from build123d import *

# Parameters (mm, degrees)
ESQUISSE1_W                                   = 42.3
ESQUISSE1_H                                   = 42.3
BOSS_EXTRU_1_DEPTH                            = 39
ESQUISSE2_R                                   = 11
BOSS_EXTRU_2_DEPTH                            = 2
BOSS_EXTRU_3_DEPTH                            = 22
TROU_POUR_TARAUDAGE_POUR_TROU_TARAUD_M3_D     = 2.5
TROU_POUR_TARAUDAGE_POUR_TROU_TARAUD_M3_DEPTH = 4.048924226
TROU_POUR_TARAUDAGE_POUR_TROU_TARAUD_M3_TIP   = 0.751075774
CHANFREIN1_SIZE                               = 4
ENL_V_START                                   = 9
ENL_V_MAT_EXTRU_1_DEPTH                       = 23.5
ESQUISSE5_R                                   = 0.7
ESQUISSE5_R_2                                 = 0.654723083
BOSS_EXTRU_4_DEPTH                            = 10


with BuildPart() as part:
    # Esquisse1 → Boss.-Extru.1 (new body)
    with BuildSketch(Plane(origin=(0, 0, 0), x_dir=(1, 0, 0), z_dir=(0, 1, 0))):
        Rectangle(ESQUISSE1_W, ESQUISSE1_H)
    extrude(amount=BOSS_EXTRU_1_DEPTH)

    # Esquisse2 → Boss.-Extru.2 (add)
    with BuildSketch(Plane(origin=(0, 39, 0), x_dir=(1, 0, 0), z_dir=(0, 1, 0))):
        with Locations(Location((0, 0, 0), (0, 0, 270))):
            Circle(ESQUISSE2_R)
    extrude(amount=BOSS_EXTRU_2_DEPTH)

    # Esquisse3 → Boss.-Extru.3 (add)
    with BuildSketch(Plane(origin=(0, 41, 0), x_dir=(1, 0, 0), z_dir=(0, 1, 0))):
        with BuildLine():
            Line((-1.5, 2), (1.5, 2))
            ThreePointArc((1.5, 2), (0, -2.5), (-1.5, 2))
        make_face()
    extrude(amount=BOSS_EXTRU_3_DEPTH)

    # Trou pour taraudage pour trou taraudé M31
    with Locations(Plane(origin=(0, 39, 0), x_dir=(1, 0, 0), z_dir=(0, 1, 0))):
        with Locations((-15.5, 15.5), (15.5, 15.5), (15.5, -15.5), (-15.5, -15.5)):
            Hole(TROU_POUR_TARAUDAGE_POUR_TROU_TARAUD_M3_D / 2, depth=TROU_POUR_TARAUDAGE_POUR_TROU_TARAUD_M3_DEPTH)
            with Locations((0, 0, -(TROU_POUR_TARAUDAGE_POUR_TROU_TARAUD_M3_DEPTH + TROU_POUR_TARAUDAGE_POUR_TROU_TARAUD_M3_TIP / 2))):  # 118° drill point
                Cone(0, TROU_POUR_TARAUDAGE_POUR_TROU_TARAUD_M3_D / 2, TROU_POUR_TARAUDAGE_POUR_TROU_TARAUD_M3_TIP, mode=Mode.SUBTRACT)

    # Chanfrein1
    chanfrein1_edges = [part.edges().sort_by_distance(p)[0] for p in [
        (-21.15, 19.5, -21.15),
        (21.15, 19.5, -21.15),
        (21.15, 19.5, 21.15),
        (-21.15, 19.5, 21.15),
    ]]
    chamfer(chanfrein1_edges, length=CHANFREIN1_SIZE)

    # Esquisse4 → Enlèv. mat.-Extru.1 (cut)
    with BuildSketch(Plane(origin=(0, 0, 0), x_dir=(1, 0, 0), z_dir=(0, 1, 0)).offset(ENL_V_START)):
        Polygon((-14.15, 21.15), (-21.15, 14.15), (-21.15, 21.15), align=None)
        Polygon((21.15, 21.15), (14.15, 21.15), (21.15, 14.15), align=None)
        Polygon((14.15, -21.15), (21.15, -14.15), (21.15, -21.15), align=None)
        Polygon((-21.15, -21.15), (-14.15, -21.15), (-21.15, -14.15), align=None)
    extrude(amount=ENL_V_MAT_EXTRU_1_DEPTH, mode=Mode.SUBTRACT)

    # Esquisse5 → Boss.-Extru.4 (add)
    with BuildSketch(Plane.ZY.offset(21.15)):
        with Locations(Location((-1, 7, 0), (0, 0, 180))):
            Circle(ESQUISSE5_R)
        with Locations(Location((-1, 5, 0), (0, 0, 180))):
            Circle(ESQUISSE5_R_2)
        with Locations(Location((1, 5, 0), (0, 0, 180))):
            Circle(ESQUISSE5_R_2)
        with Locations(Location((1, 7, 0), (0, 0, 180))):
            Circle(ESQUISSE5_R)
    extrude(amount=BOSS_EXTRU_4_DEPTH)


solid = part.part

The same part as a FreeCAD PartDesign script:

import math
import FreeCAD as App
import Part
import Sketcher
Q = App.Units.Quantity


def edges_at(feature, points):
    """Names of the edges that pass closest to the given points."""
    edges = feature.Shape.Edges
    near = lambda p: min(range(len(edges)), key=lambda i: edges[i].distToShape(Part.Vertex(*p))[0])
    return sorted({f"Edge{near(p) + 1}" for p in points})

doc = App.newDocument("Part")
params = doc.addObject("Spreadsheet::Sheet", "Params")
for row, (alias, value) in enumerate([
    ("sketch1_width", "42.3 mm"),
    ("pad1_length", "39 mm"),
    ("sketch2_diameter", "22 mm"),
    ("pad2_length", "2 mm"),
    ("sketch3_radius", "2.5 mm"),
    ("sketch3_width", "3 mm"),
    ("pad3_length", "22 mm"),
    ("sketch4_diameter", "2.5 mm"),
    ("hole_diameter", "2.5 mm"),
    ("hole_depth", "4.048924 mm"),
    ("chamfer_size", "4 mm"),
    ("sketch5_width", "7 mm"),
    ("pocket1_length", "23.5 mm"),
    ("sketch6_diameter", "1.4 mm"),
    ("pad4_length", "10 mm"),
], start=1):
    params.set(f"A{row}", alias)
    params.set(f"B{row}", "=" + value)
    params.setAlias(f"B{row}", alias)

body = doc.addObject("PartDesign::Body", "Body")

# Sketch on XZ plane
sketch1 = doc.addObject("Sketcher::SketchObject", "Sketch")
body.addObject(sketch1)
sketch1.AttachmentSupport = (doc.XZ_Plane, [""])
sketch1.MapMode = "FlatFace"
sketch1.addGeometry(Part.LineSegment(App.Vector(-21, -21, 0), App.Vector(-21, 21, 0)), False)
sketch1.addGeometry(Part.LineSegment(App.Vector(-21, 21, 0), App.Vector(21, 21, 0)), False)
sketch1.addGeometry(Part.LineSegment(App.Vector(21, 21, 0), App.Vector(21, -21, 0)), False)
sketch1.addGeometry(Part.LineSegment(App.Vector(21, -21, 0), App.Vector(-21, -21, 0)), False)
sketch1.addConstraint(Sketcher.Constraint("Coincident", 0, 2, 1, 1))
sketch1.addConstraint(Sketcher.Constraint("Coincident", 1, 2, 2, 1))
sketch1.addConstraint(Sketcher.Constraint("Coincident", 2, 2, 3, 1))
sketch1.addConstraint(Sketcher.Constraint("Coincident", 3, 2, 0, 1))
sketch1.addConstraint(Sketcher.Constraint("Vertical", 0))
sketch1.addConstraint(Sketcher.Constraint("Horizontal", 1))
sketch1.addConstraint(Sketcher.Constraint("Vertical", 2))
sketch1.addConstraint(Sketcher.Constraint("Horizontal", 3))
sketch1.addConstraint(Sketcher.Constraint("Symmetric", 0, 2, 2, 2, -1, 1))
sketch1.addConstraint(Sketcher.Constraint("Equal", 3, 0))
sketch1.addConstraint(Sketcher.Constraint("DistanceX", 1, 1, 1, 2, Q("42.3 mm")))
sketch1.setExpression("Constraints[10]", "Params.sketch1_width")
pad1 = doc.addObject("PartDesign::Pad", "Pad")
body.addObject(pad1)
pad1.Profile = sketch1
pad1.setExpression("Length", "Params.pad1_length")
pad1.Reversed = True

# Sketch on XZ plane
sketch2 = doc.addObject("Sketcher::SketchObject", "Sketch001")
body.addObject(sketch2)
sketch2.AttachmentSupport = (doc.XZ_Plane, [""])
sketch2.MapMode = "FlatFace"
sketch2.AttachmentOffset = App.Placement(App.Vector(0, 0, -39), App.Rotation())
sketch2.addGeometry(Part.Circle(App.Vector(0, 0, 0), App.Vector(0, 0, 1), 11), False)
sketch2.addConstraint(Sketcher.Constraint("Coincident", 0, 3, -1, 1))
sketch2.addConstraint(Sketcher.Constraint("Diameter", 0, Q("22 mm")))
sketch2.setExpression("Constraints[1]", "Params.sketch2_diameter")
pad2 = doc.addObject("PartDesign::Pad", "Pad001")
body.addObject(pad2)
pad2.Profile = sketch2
pad2.setExpression("Length", "Params.pad2_length")
pad2.Reversed = True

# Sketch on XZ plane
sketch3 = doc.addObject("Sketcher::SketchObject", "Sketch002")
body.addObject(sketch3)
sketch3.AttachmentSupport = (doc.XZ_Plane, [""])
sketch3.MapMode = "FlatFace"
sketch3.AttachmentOffset = App.Placement(App.Vector(0, 0, -41), App.Rotation())
sketch3.addGeometry(Part.LineSegment(App.Vector(1.5, -2, 0), App.Vector(-1.5, -2, 0)), False)
sketch3.addGeometry(Part.ArcOfCircle(Part.Circle(App.Vector(0, 0, 0), App.Vector(0, 0, 1), 2.5), math.radians(-53), math.radians(233)), False)
sketch3.addConstraint(Sketcher.Constraint("Coincident", 0, 1, 1, 1))
sketch3.addConstraint(Sketcher.Constraint("Coincident", 1, 2, 0, 2))
sketch3.addConstraint(Sketcher.Constraint("Horizontal", 0))
sketch3.addConstraint(Sketcher.Constraint("Coincident", 1, 3, -1, 1))
sketch3.addConstraint(Sketcher.Constraint("Radius", 1, Q("2.5 mm")))
sketch3.addConstraint(Sketcher.Constraint("DistanceX", 0, 2, 0, 1, Q("3 mm")))
sketch3.setExpression("Constraints[4]", "Params.sketch3_radius")
sketch3.setExpression("Constraints[5]", "Params.sketch3_width")
pad3 = doc.addObject("PartDesign::Pad", "Pad002")
body.addObject(pad3)
pad3.Profile = sketch3
pad3.setExpression("Length", "Params.pad3_length")
pad3.Reversed = True

# Sketch on XZ plane
sketch4 = doc.addObject("Sketcher::SketchObject", "Sketch003")
body.addObject(sketch4)
sketch4.AttachmentSupport = (doc.XZ_Plane, [""])
sketch4.MapMode = "FlatFace"
sketch4.AttachmentOffset = App.Placement(App.Vector(0, 0, -39), App.Rotation())
sketch4.addGeometry(Part.Circle(App.Vector(-15.5, -15.5, 0), App.Vector(0, 0, 1), 1.2), False)
sketch4.addGeometry(Part.Circle(App.Vector(15.5, -15.5, 0), App.Vector(0, 0, 1), 1.2), False)
sketch4.addGeometry(Part.Circle(App.Vector(15.5, 15.5, 0), App.Vector(0, 0, 1), 1.2), False)
sketch4.addGeometry(Part.Circle(App.Vector(-15.5, 15.5, 0), App.Vector(0, 0, 1), 1.2), False)
sketch4.addConstraint(Sketcher.Constraint("Equal", 0, 1))
sketch4.addConstraint(Sketcher.Constraint("Equal", 1, 2))
sketch4.addConstraint(Sketcher.Constraint("Equal", 2, 3))
sketch4.addConstraint(Sketcher.Constraint("Symmetric", 0, 3, 2, 3, -1, 1))
sketch4.addConstraint(Sketcher.Constraint("Symmetric", 1, 3, 3, 3, -1, 1))
sketch4.addConstraint(Sketcher.Constraint("Symmetric", 0, 3, 1, 3, -2))
sketch4.addConstraint(Sketcher.Constraint("Diameter", 0, Q("2.5 mm")))
sketch4.addConstraint(Sketcher.Constraint("DistanceX", 0, 3, 1, 3, Q("31 mm")))
sketch4.addConstraint(Sketcher.Constraint("DistanceY", 1, 3, 2, 3, Q("31 mm")))
sketch4.setExpression("Constraints[6]", "Params.sketch4_diameter")
doc.recompute()
hole = doc.addObject("PartDesign::Hole", "Hole")
body.addObject(hole)
hole.Profile = sketch4
hole.ThreadType = "None"
hole.setExpression("Diameter", "Params.hole_diameter")
hole.DepthType = "Dimension"
hole.setExpression("Depth", "Params.hole_depth")
hole.DrillPoint = "Angled"
hole.DrillPointAngle = 118
hole.Reversed = True
doc.recompute()

chamfer = doc.addObject("PartDesign::Chamfer", "Chamfer")
body.addObject(chamfer)
chamfer.Base = (hole, edges_at(hole, [
    (-21.15, 19.5, -21.15),
    (21.15, 19.5, -21.15),
    (21.15, 19.5, 21.15),
    (-21.15, 19.5, 21.15),
]))
chamfer.setExpression("Size", "Params.chamfer_size")

# Sketch on XZ plane
sketch5 = doc.addObject("Sketcher::SketchObject", "Sketch004")
body.addObject(sketch5)
sketch5.AttachmentSupport = (doc.XZ_Plane, [""])
sketch5.MapMode = "FlatFace"
sketch5.AttachmentOffset = App.Placement(App.Vector(0, 0, -9), App.Rotation())
sketch5.addGeometry(Part.LineSegment(App.Vector(-21, -14, 0), App.Vector(-14, -21, 0)), False)
sketch5.addGeometry(Part.LineSegment(App.Vector(-14, -21, 0), App.Vector(-21, -21, 0)), False)
sketch5.addGeometry(Part.LineSegment(App.Vector(-21, -21, 0), App.Vector(-21, -14, 0)), False)
sketch5.addGeometry(Part.LineSegment(App.Vector(21, -21, 0), App.Vector(14, -21, 0)), False)
sketch5.addGeometry(Part.LineSegment(App.Vector(14, -21, 0), App.Vector(21, -14, 0)), False)
sketch5.addGeometry(Part.LineSegment(App.Vector(21, -14, 0), App.Vector(21, -21, 0)), False)
sketch5.addGeometry(Part.LineSegment(App.Vector(21, 14, 0), App.Vector(14, 21, 0)), False)
sketch5.addGeometry(Part.LineSegment(App.Vector(14, 21, 0), App.Vector(21, 21, 0)), False)
sketch5.addGeometry(Part.LineSegment(App.Vector(21, 21, 0), App.Vector(21, 14, 0)), False)
sketch5.addGeometry(Part.LineSegment(App.Vector(-21, 21, 0), App.Vector(-14, 21, 0)), False)
sketch5.addGeometry(Part.LineSegment(App.Vector(-14, 21, 0), App.Vector(-21, 14, 0)), False)
sketch5.addGeometry(Part.LineSegment(App.Vector(-21, 14, 0), App.Vector(-21, 21, 0)), False)
sketch5.addConstraint(Sketcher.Constraint("Coincident", 0, 2, 1, 1))
sketch5.addConstraint(Sketcher.Constraint("Coincident", 1, 2, 2, 1))
sketch5.addConstraint(Sketcher.Constraint("Coincident", 2, 2, 0, 1))
sketch5.addConstraint(Sketcher.Constraint("Coincident", 3, 2, 4, 1))
sketch5.addConstraint(Sketcher.Constraint("Coincident", 4, 2, 5, 1))
sketch5.addConstraint(Sketcher.Constraint("Coincident", 5, 2, 3, 1))
sketch5.addConstraint(Sketcher.Constraint("Coincident", 6, 2, 7, 1))
sketch5.addConstraint(Sketcher.Constraint("Coincident", 7, 2, 8, 1))
sketch5.addConstraint(Sketcher.Constraint("Coincident", 8, 2, 6, 1))
sketch5.addConstraint(Sketcher.Constraint("Coincident", 9, 2, 10, 1))
sketch5.addConstraint(Sketcher.Constraint("Coincident", 10, 2, 11, 1))
sketch5.addConstraint(Sketcher.Constraint("Coincident", 11, 2, 9, 1))
sketch5.addConstraint(Sketcher.Constraint("Horizontal", 1))
sketch5.addConstraint(Sketcher.Constraint("Vertical", 2))
sketch5.addConstraint(Sketcher.Constraint("Horizontal", 3))
sketch5.addConstraint(Sketcher.Constraint("Vertical", 5))
sketch5.addConstraint(Sketcher.Constraint("Horizontal", 7))
sketch5.addConstraint(Sketcher.Constraint("Vertical", 8))
sketch5.addConstraint(Sketcher.Constraint("Horizontal", 9))
sketch5.addConstraint(Sketcher.Constraint("Vertical", 11))
sketch5.addConstraint(Sketcher.Constraint("Symmetric", 0, 2, 6, 2, -1, 1))
sketch5.addConstraint(Sketcher.Constraint("Symmetric", 2, 2, 8, 2, -1, 1))
sketch5.addConstraint(Sketcher.Constraint("Symmetric", 3, 2, 9, 2, -1, 1))
sketch5.addConstraint(Sketcher.Constraint("Symmetric", 4, 2, 10, 2, -1, 1))
sketch5.addConstraint(Sketcher.Constraint("Symmetric", 0, 2, 3, 2, -2))
sketch5.addConstraint(Sketcher.Constraint("Symmetric", 2, 2, 4, 2, -2))
sketch5.addConstraint(Sketcher.Constraint("Perpendicular", 0, 4))
sketch5.addConstraint(Sketcher.Constraint("DistanceX", 1, 2, 1, 1, Q("7 mm")))
sketch5.addConstraint(Sketcher.Constraint("DistanceX", 0, 2, 3, 2, Q("28.3 mm")))
sketch5.addConstraint(Sketcher.Constraint("DistanceY", 4, 2, 6, 2, Q("35.3 mm")))
sketch5.setExpression("Constraints[27]", "Params.sketch5_width")
pocket1 = doc.addObject("PartDesign::Pocket", "Pocket")
body.addObject(pocket1)
pocket1.Profile = sketch5
pocket1.setExpression("Length", "Params.pocket1_length")

# Sketch on YZ plane
sketch6 = doc.addObject("Sketcher::SketchObject", "Sketch005")
body.addObject(sketch6)
sketch6.AttachmentSupport = (doc.YZ_Plane, [""])
sketch6.MapMode = "FlatFace"
sketch6.AttachmentOffset = App.Placement(App.Vector(0, 0, -21.15), App.Rotation())
sketch6.addGeometry(Part.Circle(App.Vector(7, -1, 0), App.Vector(0, 0, 1), 0.7), False)
sketch6.addGeometry(Part.Circle(App.Vector(5, -1, 0), App.Vector(0, 0, 1), 0.7), False)
sketch6.addGeometry(Part.Circle(App.Vector(5, 1, 0), App.Vector(0, 0, 1), 0.7), False)
sketch6.addGeometry(Part.Circle(App.Vector(7, 1, 0), App.Vector(0, 0, 1), 0.7), False)
sketch6.addConstraint(Sketcher.Constraint("Equal", 1, 2))
sketch6.addConstraint(Sketcher.Constraint("Equal", 0, 3))
sketch6.addConstraint(Sketcher.Constraint("Symmetric", 1, 3, 2, 3, -1))
sketch6.addConstraint(Sketcher.Constraint("Symmetric", 0, 3, 3, 3, -1))
sketch6.addConstraint(Sketcher.Constraint("Horizontal", 0, 3, 1, 3))
sketch6.addConstraint(Sketcher.Constraint("Diameter", 0, Q("1.4 mm")))
sketch6.addConstraint(Sketcher.Constraint("DistanceX", -1, 1, 0, 3, Q("7 mm")))
sketch6.addConstraint(Sketcher.Constraint("DistanceY", 0, 3, -1, 1, Q("1 mm")))
sketch6.addConstraint(Sketcher.Constraint("DistanceX", -1, 1, 1, 3, Q("5 mm")))
sketch6.addConstraint(Sketcher.Constraint("Diameter", 1, Q("1.309446 mm")))
sketch6.setExpression("Constraints[5]", "Params.sketch6_diameter")
pad4 = doc.addObject("PartDesign::Pad", "Pad003")
body.addObject(pad4)
pad4.Profile = sketch6
pad4.setExpression("Length", "Params.pad4_length")
pad4.Reversed = True

doc.recompute()
